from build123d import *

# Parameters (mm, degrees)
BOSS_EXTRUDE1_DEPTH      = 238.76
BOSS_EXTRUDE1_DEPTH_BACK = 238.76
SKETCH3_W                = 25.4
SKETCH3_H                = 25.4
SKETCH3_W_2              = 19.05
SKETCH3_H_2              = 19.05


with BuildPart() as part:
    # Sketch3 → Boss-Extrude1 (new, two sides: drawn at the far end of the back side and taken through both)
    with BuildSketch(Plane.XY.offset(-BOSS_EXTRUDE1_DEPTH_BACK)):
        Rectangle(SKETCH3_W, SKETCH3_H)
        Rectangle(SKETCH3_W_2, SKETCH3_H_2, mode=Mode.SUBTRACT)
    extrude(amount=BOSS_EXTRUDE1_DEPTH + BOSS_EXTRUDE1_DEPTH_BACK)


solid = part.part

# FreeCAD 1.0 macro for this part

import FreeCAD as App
import Part
import Sketcher
Q = App.Units.Quantity


def add_polygon(sketch, points):
    """Adds a closed chain of lines whose ends are joined by coincident constraints."""
    first, n = sketch.GeometryCount, len(points)
    for a, b in zip(points, points[1:] + points[:1]):
        sketch.addGeometry(Part.LineSegment(App.Vector(*a, 0), App.Vector(*b, 0)), False)
    for i in range(n):
        sketch.addConstraint(Sketcher.Constraint("Coincident", first + i, 2, first + (i + 1) % n, 1))

doc = App.newDocument("Part")
body = doc.addObject("PartDesign::Body", "Body")

# Sketch on XY plane
sketch1 = body.newObject("Sketcher::SketchObject", "Sketch")
sketch1.AttachmentSupport = (doc.getObject("XY_Plane"), [""])
sketch1.MapMode = "FlatFace"
add_polygon(sketch1, [(-12.7, 12.7), (-12.7, -12.7), (12.7, -12.7), (12.7, 12.7)])  # lines 0-3
add_polygon(sketch1, [(9.525, -9.525), (-9.525, -9.525), (-9.525, 9.525), (9.525, 9.525)])  # lines 4-7
sketch1.addConstraint([
    Sketcher.Constraint("Vertical", 0),
    Sketcher.Constraint("Horizontal", 1),
    Sketcher.Constraint("Vertical", 2),
    Sketcher.Constraint("Horizontal", 3),
    Sketcher.Constraint("Horizontal", 4),
    Sketcher.Constraint("Vertical", 5),
    Sketcher.Constraint("Horizontal", 6),
    Sketcher.Constraint("Vertical", 7),
    Sketcher.Constraint("Symmetric", 0, 2, 2, 2, -1, 1),
    Sketcher.Constraint("Symmetric", 4, 2, 6, 2, -1, 1),
    Sketcher.Constraint("Equal", 3, 0),
    Sketcher.Constraint("Equal", 6, 5),
    Sketcher.Constraint("DistanceX", 1, 1, 1, 2, Q("1 in")),
    Sketcher.Constraint("DistanceX", 4, 2, 4, 1, Q("0.75 in")),
])
pad1 = body.newObject("PartDesign::Pad", "Pad")
pad1.Profile = sketch1
pad1.Type = "TwoLengths"
pad1.Length = Q("9.4 in")
pad1.Length2 = Q("9.4 in")

doc.recompute()
